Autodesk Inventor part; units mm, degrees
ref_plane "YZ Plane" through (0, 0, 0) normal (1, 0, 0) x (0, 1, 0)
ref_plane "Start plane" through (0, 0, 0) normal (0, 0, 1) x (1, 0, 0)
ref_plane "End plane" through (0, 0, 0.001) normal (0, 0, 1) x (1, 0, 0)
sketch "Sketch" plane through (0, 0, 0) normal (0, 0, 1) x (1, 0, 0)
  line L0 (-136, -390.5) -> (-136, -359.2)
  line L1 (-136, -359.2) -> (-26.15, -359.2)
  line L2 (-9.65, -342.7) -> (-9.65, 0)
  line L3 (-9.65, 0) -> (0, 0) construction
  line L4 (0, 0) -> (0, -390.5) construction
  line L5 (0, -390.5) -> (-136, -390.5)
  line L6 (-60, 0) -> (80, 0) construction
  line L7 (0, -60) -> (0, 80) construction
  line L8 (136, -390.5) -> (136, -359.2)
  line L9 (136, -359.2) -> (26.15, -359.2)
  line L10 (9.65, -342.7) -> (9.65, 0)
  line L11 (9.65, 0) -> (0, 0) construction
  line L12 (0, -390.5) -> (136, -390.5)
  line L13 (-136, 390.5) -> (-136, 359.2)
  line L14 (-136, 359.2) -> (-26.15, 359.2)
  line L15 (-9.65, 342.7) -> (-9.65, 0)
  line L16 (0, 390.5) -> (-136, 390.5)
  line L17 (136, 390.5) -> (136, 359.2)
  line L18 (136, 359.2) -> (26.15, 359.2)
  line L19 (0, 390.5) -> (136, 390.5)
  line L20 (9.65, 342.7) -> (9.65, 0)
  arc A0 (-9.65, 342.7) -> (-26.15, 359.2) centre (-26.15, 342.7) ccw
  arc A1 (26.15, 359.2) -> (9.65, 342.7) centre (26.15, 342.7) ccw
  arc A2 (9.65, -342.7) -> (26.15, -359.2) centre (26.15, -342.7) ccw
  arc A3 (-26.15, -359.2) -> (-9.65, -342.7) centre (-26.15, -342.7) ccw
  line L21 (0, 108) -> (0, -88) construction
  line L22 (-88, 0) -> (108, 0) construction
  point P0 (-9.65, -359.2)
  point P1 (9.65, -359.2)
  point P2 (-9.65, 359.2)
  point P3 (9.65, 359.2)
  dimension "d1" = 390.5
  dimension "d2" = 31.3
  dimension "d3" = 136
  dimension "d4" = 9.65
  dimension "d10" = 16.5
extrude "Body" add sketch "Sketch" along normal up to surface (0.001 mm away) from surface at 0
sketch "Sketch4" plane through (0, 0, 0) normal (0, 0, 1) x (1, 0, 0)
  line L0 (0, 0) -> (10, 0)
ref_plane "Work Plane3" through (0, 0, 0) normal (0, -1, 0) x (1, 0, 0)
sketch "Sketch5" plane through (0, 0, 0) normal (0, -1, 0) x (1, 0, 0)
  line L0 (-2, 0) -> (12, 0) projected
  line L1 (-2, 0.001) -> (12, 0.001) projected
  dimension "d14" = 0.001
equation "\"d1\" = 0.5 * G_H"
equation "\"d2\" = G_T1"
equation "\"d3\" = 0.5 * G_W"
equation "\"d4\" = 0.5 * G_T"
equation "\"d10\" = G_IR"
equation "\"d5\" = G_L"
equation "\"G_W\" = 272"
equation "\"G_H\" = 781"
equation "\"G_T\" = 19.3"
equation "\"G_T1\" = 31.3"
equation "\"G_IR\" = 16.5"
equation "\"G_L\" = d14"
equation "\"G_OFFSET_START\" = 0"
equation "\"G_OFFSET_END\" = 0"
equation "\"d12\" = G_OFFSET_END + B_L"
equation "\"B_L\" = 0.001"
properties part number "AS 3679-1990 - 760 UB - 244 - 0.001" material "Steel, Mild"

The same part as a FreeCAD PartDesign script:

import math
import FreeCAD as App
import Part
import Sketcher
from FreeCAD import Vector
Q = App.Units.Quantity

doc = App.newDocument("Part")
body = doc.addObject("PartDesign::Body", "Body")

# Sketch on XY plane
sketch1 = body.newObject("Sketcher::SketchObject", "Sketch")
sketch1.AttachmentSupport = (doc.getObject("XY_Plane"), [""])
sketch1.MapMode = "FlatFace"
sketch1.addGeometry([
    Part.LineSegment(Vector(-136, -359, 0), Vector(-136, -390, 0)),  # 0
    Part.LineSegment(Vector(-136, -390, 0), Vector(136, -390, 0)),  # 1
    Part.LineSegment(Vector(136, -390, 0), Vector(136, -359, 0)),  # 2
    Part.LineSegment(Vector(136, -359, 0), Vector(26, -359, 0)),  # 3
    Part.ArcOfCircle(Part.Circle(Vector(26, -343, 0), Vector(0, 0, 1), 16), math.radians(180), math.radians(270)),  # 4
    Part.LineSegment(Vector(10, -343, 0), Vector(10, 343, 0)),  # 5
    Part.ArcOfCircle(Part.Circle(Vector(26, 343, 0), Vector(0, 0, 1), 16), math.radians(90), math.radians(180)),  # 6
    Part.LineSegment(Vector(26, 359, 0), Vector(136, 359, 0)),  # 7
    Part.LineSegment(Vector(136, 359, 0), Vector(136, 390, 0)),  # 8
    Part.LineSegment(Vector(136, 390, 0), Vector(-136, 390, 0)),  # 9
    Part.LineSegment(Vector(-136, 390, 0), Vector(-136, 359, 0)),  # 10
    Part.LineSegment(Vector(-136, 359, 0), Vector(-26, 359, 0)),  # 11
    Part.ArcOfCircle(Part.Circle(Vector(-26, 343, 0), Vector(0, 0, 1), 16), math.radians(0), math.radians(90)),  # 12
    Part.LineSegment(Vector(-10, 343, 0), Vector(-10, -343, 0)),  # 13
    Part.ArcOfCircle(Part.Circle(Vector(-26, -343, 0), Vector(0, 0, 1), 16), math.radians(-90), math.radians(0)),  # 14
    Part.LineSegment(Vector(-26, -359, 0), Vector(-136, -359, 0)),  # 15
], False)
sketch1.addConstraint([
    Sketcher.Constraint("Coincident", 0, 2, 1, 1),
    Sketcher.Constraint("Coincident", 1, 2, 2, 1),
    Sketcher.Constraint("Coincident", 2, 2, 3, 1),
    Sketcher.Constraint("Tangent", 3, 2, 4, 2),
    Sketcher.Constraint("Tangent", 4, 1, 5, 1),
    Sketcher.Constraint("Tangent", 5, 2, 6, 2),
    Sketcher.Constraint("Tangent", 6, 1, 7, 1),
    Sketcher.Constraint("Coincident", 7, 2, 8, 1),
    Sketcher.Constraint("Coincident", 8, 2, 9, 1),
    Sketcher.Constraint("Coincident", 9, 2, 10, 1),
    Sketcher.Constraint("Coincident", 10, 2, 11, 1),
    Sketcher.Constraint("Tangent", 11, 2, 12, 2),
    Sketcher.Constraint("Tangent", 12, 1, 13, 1),
    Sketcher.Constraint("Tangent", 13, 2, 14, 2),
    Sketcher.Constraint("Tangent", 14, 1, 15, 1),
    Sketcher.Constraint("Coincident", 15, 2, 0, 1),
    Sketcher.Constraint("Vertical", 0),
    Sketcher.Constraint("Horizontal", 1),
    Sketcher.Constraint("Vertical", 2),
    Sketcher.Constraint("Horizontal", 3),
    Sketcher.Constraint("Vertical", 5),
    Sketcher.Constraint("Horizontal", 7),
    Sketcher.Constraint("Vertical", 8),
    Sketcher.Constraint("Horizontal", 9),
    Sketcher.Constraint("Vertical", 10),
    Sketcher.Constraint("Horizontal", 11),
    Sketcher.Constraint("Vertical", 13),
    Sketcher.Constraint("Horizontal", 15),
    Sketcher.Constraint("Equal", 4, 6),
    Sketcher.Constraint("Equal", 6, 12),
    Sketcher.Constraint("Equal", 12, 14),
    Sketcher.Constraint("Symmetric", 4, 3, 12, 3, -1, 1),
    Sketcher.Constraint("Symmetric", 0, 2, 8, 2, -1, 1),
    Sketcher.Constraint("Symmetric", 7, 2, 10, 2, -2),
    Sketcher.Constraint("Symmetric", 2, 2, 15, 2, -2),
    Sketcher.Constraint("Radius", 4, Q("16.5 mm")),
    Sketcher.Constraint("DistanceY", 0, 2, 0, 1, Q("31.3 mm")),
    Sketcher.Constraint("DistanceX", 0, 2, -1, 1, Q("136 mm")),
    Sketcher.Constraint("DistanceY", 0, 2, -1, 1, Q("390.5 mm")),
    Sketcher.Constraint("DistanceX", -1, 1, 4, 1, Q("9.65 mm")),
])
pad1 = body.newObject("PartDesign::Pad", "Pad")
pad1.Profile = sketch1
pad1.Length = 0.001

doc.recompute()
